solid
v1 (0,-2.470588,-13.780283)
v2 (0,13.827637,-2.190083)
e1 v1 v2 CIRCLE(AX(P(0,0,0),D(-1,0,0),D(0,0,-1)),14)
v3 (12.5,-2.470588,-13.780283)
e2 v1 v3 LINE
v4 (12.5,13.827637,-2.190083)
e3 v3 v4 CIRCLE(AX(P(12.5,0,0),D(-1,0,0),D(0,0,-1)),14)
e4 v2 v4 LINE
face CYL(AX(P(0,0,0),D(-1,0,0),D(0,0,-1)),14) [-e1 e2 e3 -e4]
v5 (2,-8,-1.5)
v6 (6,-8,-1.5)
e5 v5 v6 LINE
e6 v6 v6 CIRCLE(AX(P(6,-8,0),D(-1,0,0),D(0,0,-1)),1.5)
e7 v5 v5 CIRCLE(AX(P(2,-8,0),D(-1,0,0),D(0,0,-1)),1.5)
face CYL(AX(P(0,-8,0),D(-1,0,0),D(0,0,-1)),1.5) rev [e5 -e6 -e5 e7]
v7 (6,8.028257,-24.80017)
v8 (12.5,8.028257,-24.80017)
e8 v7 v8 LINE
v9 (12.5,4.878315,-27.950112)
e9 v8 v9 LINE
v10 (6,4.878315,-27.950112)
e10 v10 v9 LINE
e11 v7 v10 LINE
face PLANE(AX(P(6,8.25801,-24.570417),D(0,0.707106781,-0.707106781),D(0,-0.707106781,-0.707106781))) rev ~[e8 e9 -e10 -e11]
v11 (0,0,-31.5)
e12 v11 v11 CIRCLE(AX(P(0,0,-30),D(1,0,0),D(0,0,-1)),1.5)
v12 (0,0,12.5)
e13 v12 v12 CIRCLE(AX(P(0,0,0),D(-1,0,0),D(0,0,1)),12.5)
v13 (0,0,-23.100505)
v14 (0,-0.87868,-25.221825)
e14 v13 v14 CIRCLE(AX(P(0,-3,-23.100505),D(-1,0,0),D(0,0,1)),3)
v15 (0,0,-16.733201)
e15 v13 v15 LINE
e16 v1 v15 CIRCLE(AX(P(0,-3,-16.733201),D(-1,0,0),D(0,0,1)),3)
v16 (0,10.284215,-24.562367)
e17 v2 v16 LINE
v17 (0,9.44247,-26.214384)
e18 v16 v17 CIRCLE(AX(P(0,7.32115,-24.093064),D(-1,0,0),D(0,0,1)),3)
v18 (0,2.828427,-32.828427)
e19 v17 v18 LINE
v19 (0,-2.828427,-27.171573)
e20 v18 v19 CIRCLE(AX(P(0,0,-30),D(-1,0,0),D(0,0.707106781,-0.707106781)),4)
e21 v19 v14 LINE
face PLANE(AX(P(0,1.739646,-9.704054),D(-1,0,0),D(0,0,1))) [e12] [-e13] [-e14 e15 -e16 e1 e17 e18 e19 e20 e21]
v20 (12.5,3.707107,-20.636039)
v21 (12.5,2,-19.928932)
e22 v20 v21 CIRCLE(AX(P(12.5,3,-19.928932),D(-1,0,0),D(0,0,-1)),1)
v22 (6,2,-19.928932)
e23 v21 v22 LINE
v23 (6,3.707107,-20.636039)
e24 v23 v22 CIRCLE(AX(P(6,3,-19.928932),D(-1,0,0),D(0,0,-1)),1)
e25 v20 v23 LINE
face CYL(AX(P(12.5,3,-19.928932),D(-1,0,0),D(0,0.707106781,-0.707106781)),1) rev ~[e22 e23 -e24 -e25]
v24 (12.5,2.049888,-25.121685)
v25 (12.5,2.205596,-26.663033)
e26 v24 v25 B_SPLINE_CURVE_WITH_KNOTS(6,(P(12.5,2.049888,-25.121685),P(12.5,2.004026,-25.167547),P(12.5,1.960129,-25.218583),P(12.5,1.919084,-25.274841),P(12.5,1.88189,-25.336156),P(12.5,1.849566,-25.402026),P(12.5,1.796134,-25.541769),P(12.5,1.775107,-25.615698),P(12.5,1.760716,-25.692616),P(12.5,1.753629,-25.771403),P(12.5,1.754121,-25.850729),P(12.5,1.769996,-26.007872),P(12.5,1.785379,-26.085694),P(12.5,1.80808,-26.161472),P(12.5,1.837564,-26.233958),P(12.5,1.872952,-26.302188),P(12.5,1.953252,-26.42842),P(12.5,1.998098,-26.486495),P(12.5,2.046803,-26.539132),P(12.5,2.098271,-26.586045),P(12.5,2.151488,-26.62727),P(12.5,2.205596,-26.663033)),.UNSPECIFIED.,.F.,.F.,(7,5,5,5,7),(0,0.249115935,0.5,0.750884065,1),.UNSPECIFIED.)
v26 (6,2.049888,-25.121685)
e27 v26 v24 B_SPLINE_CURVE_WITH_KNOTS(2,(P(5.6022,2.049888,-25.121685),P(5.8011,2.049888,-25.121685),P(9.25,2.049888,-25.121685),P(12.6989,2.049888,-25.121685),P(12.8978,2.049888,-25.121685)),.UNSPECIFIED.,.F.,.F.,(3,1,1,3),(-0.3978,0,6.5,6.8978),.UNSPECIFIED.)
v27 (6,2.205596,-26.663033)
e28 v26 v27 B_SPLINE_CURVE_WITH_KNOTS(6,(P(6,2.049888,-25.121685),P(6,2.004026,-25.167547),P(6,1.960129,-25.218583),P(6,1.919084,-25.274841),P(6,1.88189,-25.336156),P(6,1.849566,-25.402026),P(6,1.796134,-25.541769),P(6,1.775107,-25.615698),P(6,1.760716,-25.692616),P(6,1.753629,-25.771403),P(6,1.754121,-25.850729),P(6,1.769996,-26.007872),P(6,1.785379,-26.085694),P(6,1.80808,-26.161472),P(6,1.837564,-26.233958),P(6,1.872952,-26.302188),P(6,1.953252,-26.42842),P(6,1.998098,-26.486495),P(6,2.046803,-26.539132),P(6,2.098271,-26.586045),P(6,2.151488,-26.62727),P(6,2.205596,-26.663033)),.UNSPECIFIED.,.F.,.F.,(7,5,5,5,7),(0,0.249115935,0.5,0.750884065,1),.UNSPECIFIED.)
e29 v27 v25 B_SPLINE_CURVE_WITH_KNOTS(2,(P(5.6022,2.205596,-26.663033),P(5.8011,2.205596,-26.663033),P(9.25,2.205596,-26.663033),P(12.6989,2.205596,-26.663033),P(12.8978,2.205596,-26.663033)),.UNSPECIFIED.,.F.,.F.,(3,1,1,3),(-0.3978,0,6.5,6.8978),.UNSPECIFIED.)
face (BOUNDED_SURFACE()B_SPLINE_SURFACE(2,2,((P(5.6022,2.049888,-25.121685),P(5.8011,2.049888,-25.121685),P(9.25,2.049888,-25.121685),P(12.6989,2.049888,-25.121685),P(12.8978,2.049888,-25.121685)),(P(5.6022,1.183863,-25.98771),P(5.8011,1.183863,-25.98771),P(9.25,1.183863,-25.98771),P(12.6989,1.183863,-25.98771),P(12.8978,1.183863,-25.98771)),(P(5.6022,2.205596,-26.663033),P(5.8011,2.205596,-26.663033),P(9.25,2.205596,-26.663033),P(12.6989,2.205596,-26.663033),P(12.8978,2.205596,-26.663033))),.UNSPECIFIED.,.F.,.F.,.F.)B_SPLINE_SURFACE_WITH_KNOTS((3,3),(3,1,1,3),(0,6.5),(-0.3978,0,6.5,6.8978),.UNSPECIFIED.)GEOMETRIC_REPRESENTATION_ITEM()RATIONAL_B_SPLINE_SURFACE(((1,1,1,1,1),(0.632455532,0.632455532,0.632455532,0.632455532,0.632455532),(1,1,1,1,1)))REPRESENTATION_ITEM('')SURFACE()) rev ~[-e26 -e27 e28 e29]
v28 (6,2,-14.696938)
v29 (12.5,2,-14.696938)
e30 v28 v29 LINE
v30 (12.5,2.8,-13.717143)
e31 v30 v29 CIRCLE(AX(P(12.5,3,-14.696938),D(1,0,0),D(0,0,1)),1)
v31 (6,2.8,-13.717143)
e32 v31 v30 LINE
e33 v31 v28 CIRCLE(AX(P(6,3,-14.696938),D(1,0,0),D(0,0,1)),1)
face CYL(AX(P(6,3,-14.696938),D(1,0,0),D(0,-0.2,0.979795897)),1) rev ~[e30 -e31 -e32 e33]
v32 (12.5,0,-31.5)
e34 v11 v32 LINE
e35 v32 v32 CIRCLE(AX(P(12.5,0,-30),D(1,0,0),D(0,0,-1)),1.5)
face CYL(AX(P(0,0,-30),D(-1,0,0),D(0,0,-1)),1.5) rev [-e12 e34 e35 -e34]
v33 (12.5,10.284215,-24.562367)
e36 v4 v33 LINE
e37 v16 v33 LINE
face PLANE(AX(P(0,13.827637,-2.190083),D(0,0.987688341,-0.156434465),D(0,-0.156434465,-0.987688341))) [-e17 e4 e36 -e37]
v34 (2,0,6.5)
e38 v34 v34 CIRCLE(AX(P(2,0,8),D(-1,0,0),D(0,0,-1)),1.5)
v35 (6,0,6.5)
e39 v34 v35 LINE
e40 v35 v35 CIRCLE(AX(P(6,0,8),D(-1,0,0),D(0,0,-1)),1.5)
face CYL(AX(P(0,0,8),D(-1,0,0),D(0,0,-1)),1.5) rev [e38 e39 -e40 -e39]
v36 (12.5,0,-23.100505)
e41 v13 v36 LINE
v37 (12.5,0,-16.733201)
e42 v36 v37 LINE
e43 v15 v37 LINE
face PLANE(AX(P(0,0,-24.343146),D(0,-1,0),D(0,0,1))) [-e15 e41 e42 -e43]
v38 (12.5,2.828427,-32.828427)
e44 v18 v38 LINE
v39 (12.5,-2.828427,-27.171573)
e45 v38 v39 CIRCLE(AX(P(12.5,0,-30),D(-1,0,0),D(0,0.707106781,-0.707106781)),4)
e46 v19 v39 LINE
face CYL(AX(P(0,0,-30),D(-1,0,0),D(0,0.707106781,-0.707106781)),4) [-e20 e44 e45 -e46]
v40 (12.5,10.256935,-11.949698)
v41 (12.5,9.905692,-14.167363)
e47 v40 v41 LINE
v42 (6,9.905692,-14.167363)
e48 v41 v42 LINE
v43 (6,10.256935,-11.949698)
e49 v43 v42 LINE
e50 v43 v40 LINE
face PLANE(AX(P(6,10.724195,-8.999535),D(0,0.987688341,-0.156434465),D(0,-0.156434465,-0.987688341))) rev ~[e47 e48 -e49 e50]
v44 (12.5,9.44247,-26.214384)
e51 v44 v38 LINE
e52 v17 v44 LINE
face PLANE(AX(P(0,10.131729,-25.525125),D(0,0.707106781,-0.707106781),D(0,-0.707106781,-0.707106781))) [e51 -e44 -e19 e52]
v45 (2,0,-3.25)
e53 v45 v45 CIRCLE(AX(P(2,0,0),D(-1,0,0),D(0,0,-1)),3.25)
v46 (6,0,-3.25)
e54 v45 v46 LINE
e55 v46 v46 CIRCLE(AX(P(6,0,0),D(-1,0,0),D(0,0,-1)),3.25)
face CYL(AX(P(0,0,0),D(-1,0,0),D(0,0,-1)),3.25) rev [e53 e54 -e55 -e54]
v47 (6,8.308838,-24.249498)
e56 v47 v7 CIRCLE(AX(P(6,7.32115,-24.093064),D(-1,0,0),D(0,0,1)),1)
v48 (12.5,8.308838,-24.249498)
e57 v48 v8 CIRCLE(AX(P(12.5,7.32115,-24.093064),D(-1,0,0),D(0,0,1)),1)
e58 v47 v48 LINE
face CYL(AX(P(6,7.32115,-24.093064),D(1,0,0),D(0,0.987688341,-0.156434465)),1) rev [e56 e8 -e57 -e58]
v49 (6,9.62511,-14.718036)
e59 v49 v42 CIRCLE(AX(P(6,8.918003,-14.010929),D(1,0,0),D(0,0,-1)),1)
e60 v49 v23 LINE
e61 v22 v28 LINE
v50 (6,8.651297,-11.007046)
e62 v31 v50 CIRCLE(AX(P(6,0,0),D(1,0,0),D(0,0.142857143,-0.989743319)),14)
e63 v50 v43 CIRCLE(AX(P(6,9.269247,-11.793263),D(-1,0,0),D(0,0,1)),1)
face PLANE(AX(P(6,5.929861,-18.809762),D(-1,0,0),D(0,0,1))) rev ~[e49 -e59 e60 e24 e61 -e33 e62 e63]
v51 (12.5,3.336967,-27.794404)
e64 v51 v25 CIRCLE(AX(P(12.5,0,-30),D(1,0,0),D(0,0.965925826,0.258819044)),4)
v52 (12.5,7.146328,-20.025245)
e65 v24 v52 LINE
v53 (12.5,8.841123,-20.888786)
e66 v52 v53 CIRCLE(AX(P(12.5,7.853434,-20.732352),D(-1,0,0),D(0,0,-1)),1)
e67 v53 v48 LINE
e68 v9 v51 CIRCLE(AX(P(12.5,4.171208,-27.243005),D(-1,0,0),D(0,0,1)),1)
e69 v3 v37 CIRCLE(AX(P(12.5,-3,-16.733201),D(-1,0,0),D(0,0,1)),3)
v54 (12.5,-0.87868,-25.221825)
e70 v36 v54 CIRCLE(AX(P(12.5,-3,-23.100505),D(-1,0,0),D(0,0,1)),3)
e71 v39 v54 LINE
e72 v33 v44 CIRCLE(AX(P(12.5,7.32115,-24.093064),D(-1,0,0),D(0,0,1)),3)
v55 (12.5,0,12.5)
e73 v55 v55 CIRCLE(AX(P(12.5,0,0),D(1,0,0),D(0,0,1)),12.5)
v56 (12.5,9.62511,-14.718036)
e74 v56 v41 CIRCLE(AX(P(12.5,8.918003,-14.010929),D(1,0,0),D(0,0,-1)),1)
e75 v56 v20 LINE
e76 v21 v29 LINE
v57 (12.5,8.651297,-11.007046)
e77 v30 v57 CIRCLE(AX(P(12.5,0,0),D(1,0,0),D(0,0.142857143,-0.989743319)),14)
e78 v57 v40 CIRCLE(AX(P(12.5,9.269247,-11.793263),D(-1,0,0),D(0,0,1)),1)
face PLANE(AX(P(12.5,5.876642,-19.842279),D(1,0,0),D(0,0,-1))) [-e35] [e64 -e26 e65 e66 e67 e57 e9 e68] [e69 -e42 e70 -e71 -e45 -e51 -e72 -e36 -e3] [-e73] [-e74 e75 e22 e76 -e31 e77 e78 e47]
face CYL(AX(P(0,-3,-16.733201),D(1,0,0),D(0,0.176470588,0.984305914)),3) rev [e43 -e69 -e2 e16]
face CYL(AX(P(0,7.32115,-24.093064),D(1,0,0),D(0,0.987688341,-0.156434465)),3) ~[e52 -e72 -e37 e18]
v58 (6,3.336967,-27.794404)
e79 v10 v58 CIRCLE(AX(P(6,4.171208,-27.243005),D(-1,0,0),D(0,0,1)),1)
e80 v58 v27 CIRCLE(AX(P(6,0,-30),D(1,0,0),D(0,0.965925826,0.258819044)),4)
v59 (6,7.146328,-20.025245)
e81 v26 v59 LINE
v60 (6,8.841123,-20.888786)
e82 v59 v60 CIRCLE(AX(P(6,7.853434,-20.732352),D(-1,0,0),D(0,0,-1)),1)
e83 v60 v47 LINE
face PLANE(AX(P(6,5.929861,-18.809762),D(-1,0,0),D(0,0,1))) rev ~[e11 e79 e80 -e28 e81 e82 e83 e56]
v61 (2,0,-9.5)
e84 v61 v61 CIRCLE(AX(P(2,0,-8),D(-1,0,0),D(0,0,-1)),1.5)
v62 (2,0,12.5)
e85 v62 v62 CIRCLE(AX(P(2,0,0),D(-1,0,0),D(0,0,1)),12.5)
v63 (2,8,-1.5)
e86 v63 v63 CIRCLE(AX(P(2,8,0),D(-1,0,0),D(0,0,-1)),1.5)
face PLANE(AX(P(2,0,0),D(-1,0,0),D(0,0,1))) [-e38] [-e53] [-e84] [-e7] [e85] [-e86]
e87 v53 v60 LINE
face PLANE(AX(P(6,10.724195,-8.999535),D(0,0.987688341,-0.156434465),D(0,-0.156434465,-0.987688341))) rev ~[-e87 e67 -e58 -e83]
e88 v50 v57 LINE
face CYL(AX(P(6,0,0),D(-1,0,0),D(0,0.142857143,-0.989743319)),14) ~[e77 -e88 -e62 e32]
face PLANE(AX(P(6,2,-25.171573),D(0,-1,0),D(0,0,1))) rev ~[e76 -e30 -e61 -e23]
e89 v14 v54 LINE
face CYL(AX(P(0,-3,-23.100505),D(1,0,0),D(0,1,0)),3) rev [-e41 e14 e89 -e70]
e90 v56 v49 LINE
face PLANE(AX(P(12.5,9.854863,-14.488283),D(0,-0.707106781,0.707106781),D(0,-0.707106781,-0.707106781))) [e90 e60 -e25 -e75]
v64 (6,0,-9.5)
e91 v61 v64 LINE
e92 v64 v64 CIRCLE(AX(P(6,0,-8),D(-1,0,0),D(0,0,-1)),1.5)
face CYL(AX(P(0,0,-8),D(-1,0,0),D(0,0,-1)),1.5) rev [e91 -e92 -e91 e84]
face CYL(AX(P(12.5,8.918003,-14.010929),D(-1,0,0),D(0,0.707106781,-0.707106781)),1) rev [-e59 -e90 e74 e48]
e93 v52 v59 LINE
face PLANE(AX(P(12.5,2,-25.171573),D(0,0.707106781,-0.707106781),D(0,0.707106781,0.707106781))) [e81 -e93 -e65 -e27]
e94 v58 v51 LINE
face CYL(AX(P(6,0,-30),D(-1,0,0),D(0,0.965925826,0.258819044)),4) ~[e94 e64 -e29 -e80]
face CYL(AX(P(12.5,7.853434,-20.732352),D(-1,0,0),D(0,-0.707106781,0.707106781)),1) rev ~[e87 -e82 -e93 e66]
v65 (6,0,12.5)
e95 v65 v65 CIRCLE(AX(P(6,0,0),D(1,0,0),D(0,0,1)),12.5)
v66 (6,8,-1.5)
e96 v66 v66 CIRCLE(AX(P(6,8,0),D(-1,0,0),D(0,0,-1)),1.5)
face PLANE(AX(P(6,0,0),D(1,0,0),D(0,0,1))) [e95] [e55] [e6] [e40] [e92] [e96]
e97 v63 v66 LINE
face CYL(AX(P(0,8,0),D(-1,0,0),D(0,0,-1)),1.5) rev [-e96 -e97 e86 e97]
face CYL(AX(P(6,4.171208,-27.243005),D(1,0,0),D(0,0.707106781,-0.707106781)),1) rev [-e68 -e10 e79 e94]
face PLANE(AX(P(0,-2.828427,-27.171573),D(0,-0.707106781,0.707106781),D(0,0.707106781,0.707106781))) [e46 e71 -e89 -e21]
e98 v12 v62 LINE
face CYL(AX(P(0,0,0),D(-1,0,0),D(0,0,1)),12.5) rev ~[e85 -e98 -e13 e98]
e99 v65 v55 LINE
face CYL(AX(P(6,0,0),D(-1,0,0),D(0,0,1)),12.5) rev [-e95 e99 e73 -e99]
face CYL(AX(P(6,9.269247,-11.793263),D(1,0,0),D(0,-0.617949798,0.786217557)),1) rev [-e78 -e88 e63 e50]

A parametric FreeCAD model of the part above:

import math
import FreeCAD as App
import Part
import Sketcher

V = App.Vector
Q = App.Units.Quantity


def edges_at(feature, points):
    """Names of the edges that pass closest to the given points."""
    edges = feature.Shape.Edges
    near = lambda p: min(range(len(edges)), key=lambda i: edges[i].distToShape(Part.Vertex(*p))[0])
    return sorted({f"Edge{near(p) + 1}" for p in points})

doc = App.newDocument("Part")
body = doc.addObject("PartDesign::Body", "Body")

sketch1 = body.newObject("Sketcher::SketchObject", "Sketch")
sketch1.AttachmentSupport = (doc.getObject("YZ_Plane"), [""])
sketch1.MapMode = "FlatFace"
sketch1.addGeometry([
    Part.LineSegment(V(10.1, -25.5, 0), V(13.8, -2.2, 0)),
    Part.ArcOfCircle(Part.Circle(V(0, 0, 0), V(0, 0, 1), 14), math.radians(-9), math.radians(270)),
    Part.LineSegment(V(0, -14, 0), V(0, -24.3, 0)),
    Part.LineSegment(V(0, -24.3, 0), V(-2.8, -27.2, 0)),
    Part.ArcOfCircle(Part.Circle(V(0, -30, 0), V(0, 0, 1), 4), math.radians(135), math.radians(315)),
    Part.LineSegment(V(2.8, -32.8, 0), V(10.1, -25.5, 0)),
    Part.Circle(V(-8, 0, 0), V(0, 0, 1), 1.5),
    Part.Circle(V(0, -30, 0), V(0, 0, 1), 1.5),
    Part.Circle(V(0, -8, 0), V(0, 0, 1), 1.5),
    Part.Circle(V(0, 0, 0), V(0, 0, 1), 3.2),
    Part.Circle(V(0, 8, 0), V(0, 0, 1), 1.5),
    Part.Circle(V(8, 0, 0), V(0, 0, 1), 1.5),
], False)
sketch1.addConstraint([
    Sketcher.Constraint("Tangent", 0, 2, 1, 1),
    Sketcher.Constraint("Coincident", 1, 2, 2, 1),
    Sketcher.Constraint("Coincident", 2, 2, 3, 1),
    Sketcher.Constraint("Tangent", 3, 2, 4, 1),
    Sketcher.Constraint("Tangent", 4, 2, 5, 1),
    Sketcher.Constraint("Coincident", 5, 2, 0, 1),
    Sketcher.Constraint("Vertical", 2),
    Sketcher.Constraint("Coincident", 1, 3, -1, 1),
    Sketcher.Constraint("Coincident", 9, 3, -1, 1),
    Sketcher.Constraint("Coincident", 7, 3, 4, 3),
    Sketcher.Constraint("Equal", 6, 7),
    Sketcher.Constraint("Equal", 7, 8),
    Sketcher.Constraint("Equal", 8, 10),
    Sketcher.Constraint("Equal", 10, 11),
    Sketcher.Constraint("Symmetric", 8, 3, 10, 3, -1, 1),
    Sketcher.Constraint("Symmetric", 6, 3, 11, 3, -1, 1),
    Sketcher.Constraint("PointOnObject", 4, 3, -2),
    Sketcher.Constraint("PointOnObject", 6, 3, -1),
    Sketcher.Constraint("PointOnObject", 8, 3, -2),
    Sketcher.Constraint("PointOnObject", 1, 2, -2),
    Sketcher.Constraint("Parallel", 3, 5),
    Sketcher.Constraint("Diameter", 6, 3.0),
    Sketcher.Constraint("Radius", 1, 14.0),
    Sketcher.Constraint("Radius", 4, 4.0),
    Sketcher.Constraint("Diameter", 9, 6.5),
    Sketcher.Constraint("Angle", 0, Q("81 deg")),
    Sketcher.Constraint("Angle", 3, Q("-135 deg")),
    Sketcher.Constraint("DistanceY", 4, 3, -1, 1, 30.0),
    Sketcher.Constraint("DistanceX", 6, 3, -1, 1, 8.0),
    Sketcher.Constraint("DistanceY", 8, 3, -1, 1, 8.0),
])
pad1 = body.newObject("PartDesign::Pad", "Pad")
pad1.Profile = sketch1
pad1.Length = 12.5

sketch2 = body.newObject("Sketcher::SketchObject", "Sketch001")
sketch2.AttachmentSupport = (doc.getObject("YZ_Plane"), [""])
sketch2.MapMode = "FlatFace"
sketch2.addGeometry(Part.Circle(V(0, 0, 0), V(0, 0, 1), 12), False)
sketch2.addConstraint([
    Sketcher.Constraint("Coincident", 0, 3, -1, 1),
    Sketcher.Constraint("Diameter", 0, 25.0),
])
pocket1 = body.newObject("PartDesign::Pocket", "Pocket")
pocket1.Profile = sketch2
pocket1.Length = 2
pocket1.Reversed = True

sketch3 = body.newObject("Sketcher::SketchObject", "Sketch002")
sketch3.AttachmentSupport = (doc.getObject("YZ_Plane"), [""])
sketch3.MapMode = "FlatFace"
sketch3.AttachmentOffset = App.Placement(V(0, 0, 6), App.Rotation())
sketch3.addGeometry([
    Part.Circle(V(0, 0, 0), V(0, 0, 1), 12.5),
    Part.ArcOfCircle(Part.Circle(V(0, 0, 0), V(0, 0, 1), 14), math.radians(-82), math.radians(-40)),
    Part.LineSegment(V(2, -13.9, 0), V(2, -25.2, 0)),
    Part.LineSegment(V(2, -25.2, 0), V(1, -26.1, 0)),
    Part.ArcOfCircle(Part.Circle(V(0, -30, 0), V(0, 0, 1), 4), math.radians(15), math.radians(75)),
    Part.LineSegment(V(3.9, -29, 0), V(8.3, -24.6, 0)),
    Part.LineSegment(V(8.3, -24.6, 0), V(10.7, -9, 0)),
], False)
sketch3.addConstraint([
    Sketcher.Constraint("Coincident", 1, 1, 2, 1),
    Sketcher.Constraint("Coincident", 2, 2, 3, 1),
    Sketcher.Constraint("Coincident", 3, 2, 4, 2),
    Sketcher.Constraint("Coincident", 4, 1, 5, 1),
    Sketcher.Constraint("Coincident", 5, 2, 6, 1),
    Sketcher.Constraint("Coincident", 6, 2, 1, 2),
    Sketcher.Constraint("Vertical", 2),
    Sketcher.Constraint("Coincident", 0, 3, -1, 1),
    Sketcher.Constraint("Coincident", 1, 3, -1, 1),
    Sketcher.Constraint("PointOnObject", 4, 3, -2),
    Sketcher.Constraint("Parallel", 3, 5),
    Sketcher.Constraint("Diameter", 0, 25.0),
    Sketcher.Constraint("Radius", 1, 14.0),
    Sketcher.Constraint("Radius", 4, 4.0),
    Sketcher.Constraint("Angle", 3, Q("-135 deg")),
    Sketcher.Constraint("Angle", 6, Q("81 deg")),
    Sketcher.Constraint("DistanceY", 4, 3, -1, 1, 30.0),
    Sketcher.Constraint("DistanceX", -1, 1, 1, 1, 2.0),
    Sketcher.Constraint("DistanceY", 2, 2, 2, 1, 11.315166),
    Sketcher.Constraint("DistanceX", -1, 1, 5, 2, 8.25801),
    Sketcher.Constraint("DistanceY", 4, 1, 2, 2, 3.793151),
])
pocket2 = body.newObject("PartDesign::Pocket", "Pocket001")
pocket2.Profile = sketch3
pocket2.Length = 6.5
pocket2.Reversed = True

sketch4 = body.newObject("Sketcher::SketchObject", "Sketch003")
sketch4.AttachmentSupport = (doc.getObject("YZ_Plane"), [""])
sketch4.MapMode = "FlatFace"
sketch4.AttachmentOffset = App.Placement(V(0, 0, 12.5), App.Rotation())
sketch4.addGeometry([
    Part.LineSegment(V(2, -25.2, 0), V(9.3, -17.8, 0)),
    Part.LineSegment(V(9.3, -17.8, 0), V(9.9, -14.5, 0)),
    Part.LineSegment(V(9.9, -14.5, 0), V(2, -22.3, 0)),
    Part.LineSegment(V(2, -22.3, 0), V(2, -25.2, 0)),
], False)
sketch4.addConstraint([
    Sketcher.Constraint("Coincident", 0, 2, 1, 1),
    Sketcher.Constraint("Coincident", 1, 2, 2, 1),
    Sketcher.Constraint("Coincident", 2, 2, 3, 1),
    Sketcher.Constraint("Coincident", 3, 2, 0, 1),
    Sketcher.Constraint("Vertical", 3),
    Sketcher.Constraint("Parallel", 0, 2),
    Sketcher.Constraint("Angle", 0, Q("45 deg")),
    Sketcher.Constraint("Angle", 1, Q("81 deg")),
    Sketcher.Constraint("DistanceX", -1, 1, 2, 2, 2.0),
    Sketcher.Constraint("Distance", 0, 10.35569),
    Sketcher.Constraint("DistanceY", 3, 2, 3, 1, 2.828427),
    Sketcher.Constraint("DistanceY", 0, 2, -1, 1, 17.848994),
])
pad2 = body.newObject("PartDesign::Pad", "Pad001")
pad2.Profile = sketch4
pad2.Type = "UpToFirst"
pad2.Reversed = True
doc.recompute()

fillet = body.newObject("PartDesign::Fillet", "Fillet")
fillet.Base = (pad2, edges_at(pad2, [
    (9.25, 2, -22.343),
    (9.25, 9.855, -14.488),
    (9.25, 9.323, -17.849),
    (9.25, 2, -13.856),
    (9.25, 10.724, -9),
    (9.25, 8.258, -24.57),
    (9.25, 3.864, -28.965),
    (9.25, 1.035, -26.136),
]))
fillet.Radius = 1
doc.recompute()

fillet2 = body.newObject("PartDesign::Fillet", "Fillet001")
fillet2.Base = (fillet, edges_at(fillet, [(6.25, 10.132, -25.525), (6.25, 0, -24.343), (6.25, 0, -14)]))
fillet2.Radius = 3

doc.recompute()
